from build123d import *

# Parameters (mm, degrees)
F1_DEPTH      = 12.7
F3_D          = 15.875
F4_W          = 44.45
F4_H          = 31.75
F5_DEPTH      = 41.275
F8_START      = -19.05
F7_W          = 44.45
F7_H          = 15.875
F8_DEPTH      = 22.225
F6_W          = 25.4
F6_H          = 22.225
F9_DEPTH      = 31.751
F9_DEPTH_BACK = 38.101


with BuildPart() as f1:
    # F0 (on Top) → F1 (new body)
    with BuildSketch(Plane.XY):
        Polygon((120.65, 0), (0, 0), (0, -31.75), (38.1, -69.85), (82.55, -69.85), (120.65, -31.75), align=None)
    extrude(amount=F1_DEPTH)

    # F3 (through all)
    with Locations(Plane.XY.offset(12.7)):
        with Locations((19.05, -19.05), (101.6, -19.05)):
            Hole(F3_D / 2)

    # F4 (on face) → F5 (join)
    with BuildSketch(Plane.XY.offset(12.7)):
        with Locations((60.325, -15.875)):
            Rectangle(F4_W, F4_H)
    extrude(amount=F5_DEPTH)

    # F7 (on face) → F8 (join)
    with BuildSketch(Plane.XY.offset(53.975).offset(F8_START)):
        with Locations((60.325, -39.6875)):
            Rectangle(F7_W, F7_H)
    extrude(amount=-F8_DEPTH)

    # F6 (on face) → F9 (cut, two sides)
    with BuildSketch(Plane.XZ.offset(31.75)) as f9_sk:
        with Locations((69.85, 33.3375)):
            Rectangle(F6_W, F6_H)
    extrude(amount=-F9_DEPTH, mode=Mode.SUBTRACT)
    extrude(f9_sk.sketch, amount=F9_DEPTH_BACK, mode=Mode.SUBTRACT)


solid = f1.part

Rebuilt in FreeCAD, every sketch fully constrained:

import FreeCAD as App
import Part
import Sketcher

V = App.Vector
Q = App.Units.Quantity

doc = App.newDocument("Part")
body = doc.addObject("PartDesign::Body", "Body")

# Sketch on XY plane
sketch1 = body.newObject("Sketcher::SketchObject", "Sketch")
sketch1.AttachmentSupport = (doc.getObject("XY_Plane"), [""])
sketch1.MapMode = "FlatFace"
sketch1.addGeometry(Part.LineSegment(V(120.65, 0, 0), V(0, 0, 0)), False)
sketch1.addGeometry(Part.LineSegment(V(0, 0, 0), V(0, -31.75, 0)), False)
sketch1.addGeometry(Part.LineSegment(V(0, -31.75, 0), V(38.1, -69.85, 0)), False)
sketch1.addGeometry(Part.LineSegment(V(38.1, -69.85, 0), V(82.55, -69.85, 0)), False)
sketch1.addGeometry(Part.LineSegment(V(82.55, -69.85, 0), V(120.65, -31.75, 0)), False)
sketch1.addGeometry(Part.LineSegment(V(120.65, -31.75, 0), V(120.65, 0, 0)), False)
sketch1.addConstraint(Sketcher.Constraint("Coincident", 0, 2, 1, 1))
sketch1.addConstraint(Sketcher.Constraint("Coincident", 1, 2, 2, 1))
sketch1.addConstraint(Sketcher.Constraint("Coincident", 2, 2, 3, 1))
sketch1.addConstraint(Sketcher.Constraint("Coincident", 3, 2, 4, 1))
sketch1.addConstraint(Sketcher.Constraint("Coincident", 4, 2, 5, 1))
sketch1.addConstraint(Sketcher.Constraint("Coincident", 5, 2, 0, 1))
sketch1.addConstraint(Sketcher.Constraint("Horizontal", 0))
sketch1.addConstraint(Sketcher.Constraint("Vertical", 1))
sketch1.addConstraint(Sketcher.Constraint("Horizontal", 3))
sketch1.addConstraint(Sketcher.Constraint("Vertical", 5))
sketch1.addConstraint(Sketcher.Constraint("Coincident", 0, 2, -1, 1))
sketch1.addConstraint(Sketcher.Constraint("Perpendicular", 2, 4))
sketch1.addConstraint(Sketcher.Constraint("Horizontal", 1, 2, 4, 2))
sketch1.addConstraint(Sketcher.Constraint("Equal", 2, 4))
sketch1.addConstraint(Sketcher.Constraint("DistanceX", 0, 2, 0, 1, Q("4.75 in")))
sketch1.addConstraint(Sketcher.Constraint("DistanceX", 3, 1, 3, 2, Q("1.75 in")))
sketch1.addConstraint(Sketcher.Constraint("DistanceY", 1, 2, 1, 1, Q("1.25 in")))
pad1 = body.newObject("PartDesign::Pad", "Pad")
pad1.Profile = sketch1
pad1.Length = Q("0.5 in")

# Sketch on XY plane
sketch2 = body.newObject("Sketcher::SketchObject", "Sketch001")
sketch2.AttachmentSupport = (doc.getObject("XY_Plane"), [""])
sketch2.MapMode = "FlatFace"
sketch2.AttachmentOffset = App.Placement(V(0, 0, 0.5 * 25.4), App.Rotation())
sketch2.addGeometry(Part.Circle(V(19.05, -19.05, 0), V(0, 0, 1), 7.9375), False)
sketch2.addGeometry(Part.Circle(V(101.6, -19.05, 0), V(0, 0, 1), 7.9375), False)
sketch2.addConstraint(Sketcher.Constraint("Equal", 0, 1))
sketch2.addConstraint(Sketcher.Constraint("Horizontal", 0, 3, 1, 3))
sketch2.addConstraint(Sketcher.Constraint("Diameter", 0, Q("0.625 in")))
sketch2.addConstraint(Sketcher.Constraint("DistanceX", -1, 1, 1, 3, Q("4 in")))
sketch2.addConstraint(Sketcher.Constraint("DistanceX", -1, 1, 0, 3, Q("0.75 in")))
sketch2.addConstraint(Sketcher.Constraint("DistanceY", 0, 3, -1, 1, Q("0.75 in")))
doc.recompute()
hole = body.newObject("PartDesign::Hole", "Hole")
hole.Profile = sketch2
hole.ThreadType = "None"
hole.Diameter = Q("0.625 in")
hole.DepthType = "ThroughAll"

# Sketch on XY plane
sketch3 = body.newObject("Sketcher::SketchObject", "Sketch002")
sketch3.AttachmentSupport = (doc.getObject("XY_Plane"), [""])
sketch3.MapMode = "FlatFace"
sketch3.AttachmentOffset = App.Placement(V(0, 0, 0.5 * 25.4), App.Rotation())
sketch3.addGeometry(Part.LineSegment(V(38.1, 0, 0), V(38.1, -31.75, 0)), False)
sketch3.addGeometry(Part.LineSegment(V(38.1, -31.75, 0), V(82.55, -31.75, 0)), False)
sketch3.addGeometry(Part.LineSegment(V(82.55, -31.75, 0), V(82.55, 0, 0)), False)
sketch3.addGeometry(Part.LineSegment(V(82.55, 0, 0), V(38.1, 0, 0)), False)
sketch3.addConstraint(Sketcher.Constraint("Coincident", 0, 2, 1, 1))
sketch3.addConstraint(Sketcher.Constraint("Coincident", 1, 2, 2, 1))
sketch3.addConstraint(Sketcher.Constraint("Coincident", 2, 2, 3, 1))
sketch3.addConstraint(Sketcher.Constraint("Coincident", 3, 2, 0, 1))
sketch3.addConstraint(Sketcher.Constraint("Vertical", 0))
sketch3.addConstraint(Sketcher.Constraint("Horizontal", 1))
sketch3.addConstraint(Sketcher.Constraint("Vertical", 2))
sketch3.addConstraint(Sketcher.Constraint("Horizontal", 3))
sketch3.addConstraint(Sketcher.Constraint("PointOnObject", 2, 2, -1))
sketch3.addConstraint(Sketcher.Constraint("DistanceX", 1, 1, 1, 2, Q("1.75 in")))
sketch3.addConstraint(Sketcher.Constraint("DistanceY", 0, 2, 0, 1, Q("1.25 in")))
sketch3.addConstraint(Sketcher.Constraint("DistanceX", -1, 1, 0, 2, Q("1.5 in")))
pad2 = body.newObject("PartDesign::Pad", "Pad001")
pad2.Profile = sketch3
pad2.Length = Q("1.625 in")

# Sketch on XY plane
sketch4 = body.newObject("Sketcher::SketchObject", "Sketch003")
sketch4.AttachmentSupport = (doc.getObject("XY_Plane"), [""])
sketch4.MapMode = "FlatFace"
sketch4.AttachmentOffset = App.Placement(V(0, 0, 1.375 * 25.4), App.Rotation())
sketch4.addGeometry(Part.LineSegment(V(38.1, -31.75, 0), V(38.1, -47.625, 0)), False)
sketch4.addGeometry(Part.LineSegment(V(38.1, -47.625, 0), V(82.55, -47.625, 0)), False)
sketch4.addGeometry(Part.LineSegment(V(82.55, -47.625, 0), V(82.55, -31.75, 0)), False)
sketch4.addGeometry(Part.LineSegment(V(82.55, -31.75, 0), V(38.1, -31.75, 0)), False)
sketch4.addConstraint(Sketcher.Constraint("Coincident", 0, 2, 1, 1))
sketch4.addConstraint(Sketcher.Constraint("Coincident", 1, 2, 2, 1))
sketch4.addConstraint(Sketcher.Constraint("Coincident", 2, 2, 3, 1))
sketch4.addConstraint(Sketcher.Constraint("Coincident", 3, 2, 0, 1))
sketch4.addConstraint(Sketcher.Constraint("Vertical", 0))
sketch4.addConstraint(Sketcher.Constraint("Horizontal", 1))
sketch4.addConstraint(Sketcher.Constraint("Vertical", 2))
sketch4.addConstraint(Sketcher.Constraint("Horizontal", 3))
sketch4.addConstraint(Sketcher.Constraint("DistanceX", 1, 1, 1, 2, Q("1.75 in")))
sketch4.addConstraint(Sketcher.Constraint("DistanceX", -1, 1, 0, 2, Q("1.5 in")))
sketch4.addConstraint(Sketcher.Constraint("DistanceY", 0, 2, 0, 1, Q("0.625 in")))
sketch4.addConstraint(Sketcher.Constraint("DistanceY", 2, 2, -1, 1, Q("1.25 in")))
pad3 = body.newObject("PartDesign::Pad", "Pad002")
pad3.Profile = sketch4
pad3.Length = Q("0.875 in")
pad3.Reversed = True

# Sketch on XZ plane
sketch5 = body.newObject("Sketcher::SketchObject", "Sketch004")
sketch5.AttachmentSupport = (doc.getObject("XZ_Plane"), [""])
sketch5.MapMode = "FlatFace"
sketch5.AttachmentOffset = App.Placement(V(0, 0, 1.25 * 25.4), App.Rotation())
sketch5.addGeometry(Part.LineSegment(V(57.15, 44.45, 0), V(57.15, 22.225, 0)), False)
sketch5.addGeometry(Part.LineSegment(V(57.15, 22.225, 0), V(82.55, 22.225, 0)), False)
sketch5.addGeometry(Part.LineSegment(V(82.55, 22.225, 0), V(82.55, 44.45, 0)), False)
sketch5.addGeometry(Part.LineSegment(V(82.55, 44.45, 0), V(57.15, 44.45, 0)), False)
sketch5.addConstraint(Sketcher.Constraint("Coincident", 0, 2, 1, 1))
sketch5.addConstraint(Sketcher.Constraint("Coincident", 1, 2, 2, 1))
sketch5.addConstraint(Sketcher.Constraint("Coincident", 2, 2, 3, 1))
sketch5.addConstraint(Sketcher.Constraint("Coincident", 3, 2, 0, 1))
sketch5.addConstraint(Sketcher.Constraint("Vertical", 0))
sketch5.addConstraint(Sketcher.Constraint("Horizontal", 1))
sketch5.addConstraint(Sketcher.Constraint("Vertical", 2))
sketch5.addConstraint(Sketcher.Constraint("Horizontal", 3))
sketch5.addConstraint(Sketcher.Constraint("DistanceX", 1, 1, 1, 2, Q("1 in")))
sketch5.addConstraint(Sketcher.Constraint("DistanceY", 0, 2, 0, 1, Q("0.875 in")))
sketch5.addConstraint(Sketcher.Constraint("DistanceX", -1, 1, 0, 2, Q("2.25 in")))
sketch5.addConstraint(Sketcher.Constraint("DistanceY", -1, 1, 2, 2, Q("1.75 in")))
pocket1 = body.newObject("PartDesign::Pocket", "Pocket")
pocket1.Profile = sketch5
pocket1.Type = "ThroughAll"
pocket1.Midplane = True

doc.recompute()
